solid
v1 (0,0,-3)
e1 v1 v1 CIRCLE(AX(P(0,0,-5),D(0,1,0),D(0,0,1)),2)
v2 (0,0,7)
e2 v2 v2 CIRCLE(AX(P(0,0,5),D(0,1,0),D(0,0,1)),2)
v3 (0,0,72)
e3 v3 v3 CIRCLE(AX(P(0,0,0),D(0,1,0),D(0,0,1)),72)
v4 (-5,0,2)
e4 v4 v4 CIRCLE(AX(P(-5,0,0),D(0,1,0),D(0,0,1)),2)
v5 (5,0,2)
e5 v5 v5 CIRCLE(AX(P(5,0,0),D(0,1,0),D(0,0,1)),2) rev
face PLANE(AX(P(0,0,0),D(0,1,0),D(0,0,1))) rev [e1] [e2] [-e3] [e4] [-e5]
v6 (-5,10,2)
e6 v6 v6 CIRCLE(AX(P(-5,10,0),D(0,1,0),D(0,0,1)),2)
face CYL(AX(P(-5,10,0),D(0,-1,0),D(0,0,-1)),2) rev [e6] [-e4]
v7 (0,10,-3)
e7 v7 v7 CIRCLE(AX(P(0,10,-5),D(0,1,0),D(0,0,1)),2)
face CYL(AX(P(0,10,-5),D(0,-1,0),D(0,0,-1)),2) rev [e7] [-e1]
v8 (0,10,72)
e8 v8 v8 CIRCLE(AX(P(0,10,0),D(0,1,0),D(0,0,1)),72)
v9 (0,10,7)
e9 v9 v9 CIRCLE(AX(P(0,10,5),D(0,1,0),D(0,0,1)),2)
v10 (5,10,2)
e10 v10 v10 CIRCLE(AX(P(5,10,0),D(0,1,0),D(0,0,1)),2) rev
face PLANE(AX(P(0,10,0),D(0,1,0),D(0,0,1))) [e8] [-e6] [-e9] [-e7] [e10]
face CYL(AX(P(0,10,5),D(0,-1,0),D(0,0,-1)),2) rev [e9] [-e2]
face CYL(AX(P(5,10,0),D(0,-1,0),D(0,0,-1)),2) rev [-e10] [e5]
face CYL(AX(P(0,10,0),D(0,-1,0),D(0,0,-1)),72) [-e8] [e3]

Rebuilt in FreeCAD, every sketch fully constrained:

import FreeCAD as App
import Part
import Sketcher

V = App.Vector
Q = App.Units.Quantity

doc = App.newDocument("Part")
body = doc.addObject("PartDesign::Body", "Body")

# Sketch on XZ plane
sketch1 = body.newObject("Sketcher::SketchObject", "Sketch")
sketch1.AttachmentSupport = (doc.getObject("XZ_Plane"), [""])
sketch1.MapMode = "FlatFace"
sketch1.addGeometry([
    Part.Circle(V(0, 0, 0), V(0, 0, 1), 72),  # 0
    Part.Circle(V(0, -5, 0), V(0, 0, 1), 2),  # 1
    Part.Circle(V(-5, 0, 0), V(0, 0, 1), 2),  # 2
    Part.Circle(V(5, 0, 0), V(0, 0, 1), 2),  # 3
    Part.Circle(V(0, 5, 0), V(0, 0, 1), 2),  # 4
], False)
sketch1.addConstraint([
    Sketcher.Constraint("Coincident", 0, 3, -1, 1),
    Sketcher.Constraint("Equal", 1, 2),
    Sketcher.Constraint("Equal", 2, 3),
    Sketcher.Constraint("Equal", 3, 4),
    Sketcher.Constraint("Symmetric", 2, 3, 3, 3, -1, 1),
    Sketcher.Constraint("Symmetric", 1, 3, 4, 3, -1, 1),
    Sketcher.Constraint("PointOnObject", 1, 3, -2),
    Sketcher.Constraint("PointOnObject", 2, 3, -1),
    Sketcher.Constraint("Diameter", 0, Q("144 mm")),
    Sketcher.Constraint("Diameter", 1, Q("4 mm")),
    Sketcher.Constraint("DistanceY", 1, 3, -1, 1, Q("5 mm")),
    Sketcher.Constraint("DistanceX", 2, 3, -1, 1, Q("5 mm")),
])
pad1 = body.newObject("PartDesign::Pad", "Pad")
pad1.Profile = sketch1
pad1.Length = 10
pad1.Reversed = True

doc.recompute()
